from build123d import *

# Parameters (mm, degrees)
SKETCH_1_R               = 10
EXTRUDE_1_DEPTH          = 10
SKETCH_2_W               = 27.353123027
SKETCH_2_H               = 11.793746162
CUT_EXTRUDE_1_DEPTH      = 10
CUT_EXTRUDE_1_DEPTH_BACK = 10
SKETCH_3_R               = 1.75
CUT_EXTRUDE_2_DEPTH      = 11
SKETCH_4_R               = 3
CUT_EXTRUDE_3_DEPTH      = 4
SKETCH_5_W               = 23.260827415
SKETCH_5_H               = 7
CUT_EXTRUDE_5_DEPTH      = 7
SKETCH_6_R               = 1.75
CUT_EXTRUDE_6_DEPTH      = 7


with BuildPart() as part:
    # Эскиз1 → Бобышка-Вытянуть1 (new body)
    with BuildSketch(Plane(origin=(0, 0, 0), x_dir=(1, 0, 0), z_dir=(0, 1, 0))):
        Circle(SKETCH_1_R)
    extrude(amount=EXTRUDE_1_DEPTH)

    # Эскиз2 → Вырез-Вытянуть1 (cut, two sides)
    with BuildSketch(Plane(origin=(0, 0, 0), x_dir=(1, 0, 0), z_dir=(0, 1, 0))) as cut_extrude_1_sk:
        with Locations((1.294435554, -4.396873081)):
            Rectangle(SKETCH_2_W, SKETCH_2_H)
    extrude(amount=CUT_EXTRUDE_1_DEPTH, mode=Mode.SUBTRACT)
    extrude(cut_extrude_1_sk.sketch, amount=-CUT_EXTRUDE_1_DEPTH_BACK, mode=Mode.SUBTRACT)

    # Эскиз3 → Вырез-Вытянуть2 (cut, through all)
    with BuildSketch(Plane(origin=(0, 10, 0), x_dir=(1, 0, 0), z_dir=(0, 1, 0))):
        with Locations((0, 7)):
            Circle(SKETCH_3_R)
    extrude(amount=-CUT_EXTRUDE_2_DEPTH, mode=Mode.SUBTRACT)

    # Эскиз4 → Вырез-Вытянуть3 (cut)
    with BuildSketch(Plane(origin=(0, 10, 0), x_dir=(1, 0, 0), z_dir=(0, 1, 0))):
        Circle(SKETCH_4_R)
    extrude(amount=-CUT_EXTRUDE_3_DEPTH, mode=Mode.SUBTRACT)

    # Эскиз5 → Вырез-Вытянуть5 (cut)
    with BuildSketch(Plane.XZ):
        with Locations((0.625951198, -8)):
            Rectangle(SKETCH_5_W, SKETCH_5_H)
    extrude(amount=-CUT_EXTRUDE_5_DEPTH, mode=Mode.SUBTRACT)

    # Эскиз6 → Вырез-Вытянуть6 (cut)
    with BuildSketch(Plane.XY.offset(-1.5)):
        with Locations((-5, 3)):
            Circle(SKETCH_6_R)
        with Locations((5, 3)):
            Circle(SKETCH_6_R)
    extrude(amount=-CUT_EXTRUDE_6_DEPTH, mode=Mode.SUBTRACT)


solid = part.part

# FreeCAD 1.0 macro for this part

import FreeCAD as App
import Part
import Sketcher

V = App.Vector
Q = App.Units.Quantity


def add_polygon(sketch, points):
    """Adds a closed chain of lines whose ends are joined by coincident constraints."""
    first, n = sketch.GeometryCount, len(points)
    for a, b in zip(points, points[1:] + points[:1]):
        sketch.addGeometry(Part.LineSegment(App.Vector(*a, 0), App.Vector(*b, 0)), False)
    for i in range(n):
        sketch.addConstraint(Sketcher.Constraint("Coincident", first + i, 2, first + (i + 1) % n, 1))

doc = App.newDocument("Part")
body = doc.addObject("PartDesign::Body", "Body")

# Sketch on XZ plane
sketch1 = body.newObject("Sketcher::SketchObject", "Sketch")
sketch1.AttachmentSupport = (doc.getObject("XZ_Plane"), [""])
sketch1.MapMode = "FlatFace"
sketch1.addGeometry(Part.Circle(V(0, 0, 0), V(0, 0, 1), 10), False)
sketch1.addConstraint(Sketcher.Constraint("Coincident", 0, 3, -1, 1))
sketch1.addConstraint(Sketcher.Constraint("Diameter", 0, Q("20 mm")))
pad1 = body.newObject("PartDesign::Pad", "Pad")
pad1.Profile = sketch1
pad1.Length = 10
pad1.Reversed = True

# Sketch on XZ plane
sketch2 = body.newObject("Sketcher::SketchObject", "Sketch001")
sketch2.AttachmentSupport = (doc.getObject("XZ_Plane"), [""])
sketch2.MapMode = "FlatFace"
add_polygon(sketch2, [(-12, -2), (-12, 10), (15, 10), (15, -2)])  # lines 0-3
sketch2.addConstraint(Sketcher.Constraint("Vertical", 0))
sketch2.addConstraint(Sketcher.Constraint("Horizontal", 1))
sketch2.addConstraint(Sketcher.Constraint("Vertical", 2))
sketch2.addConstraint(Sketcher.Constraint("Horizontal", 3))
sketch2.addConstraint(Sketcher.Constraint("DistanceY", 2, 2, -1, 1, Q("1.5 mm")))
sketch2.addConstraint(Sketcher.Constraint("DistanceX", 1, 1, 1, 2, Q("27.353123 mm")))
sketch2.addConstraint(Sketcher.Constraint("DistanceY", 0, 1, 0, 2, Q("11.793746 mm")))
sketch2.addConstraint(Sketcher.Constraint("DistanceX", 0, 2, -1, 1, Q("12.382126 mm")))
pocket1 = body.newObject("PartDesign::Pocket", "Pocket")
pocket1.Profile = sketch2
pocket1.Type = "ThroughAll"
pocket1.Midplane = True

# Sketch on XZ plane
sketch3 = body.newObject("Sketcher::SketchObject", "Sketch002")
sketch3.AttachmentSupport = (doc.getObject("XZ_Plane"), [""])
sketch3.MapMode = "FlatFace"
sketch3.AttachmentOffset = App.Placement(V(0, 0, -10), App.Rotation())
sketch3.addGeometry(Part.Circle(V(0, -7, 0), V(0, 0, 1), 1.8), False)
sketch3.addConstraint(Sketcher.Constraint("PointOnObject", 0, 3, -2))
sketch3.addConstraint(Sketcher.Constraint("Diameter", 0, Q("3.5 mm")))
sketch3.addConstraint(Sketcher.Constraint("DistanceY", 0, 3, -1, 1, Q("7 mm")))
pocket2 = body.newObject("PartDesign::Pocket", "Pocket001")
pocket2.Profile = sketch3
pocket2.Type = "ThroughAll"
pocket2.Reversed = True

# Sketch on XZ plane
sketch4 = body.newObject("Sketcher::SketchObject", "Sketch003")
sketch4.AttachmentSupport = (doc.getObject("XZ_Plane"), [""])
sketch4.MapMode = "FlatFace"
sketch4.AttachmentOffset = App.Placement(V(0, 0, -10), App.Rotation())
sketch4.addGeometry(Part.Circle(V(0, 0, 0), V(0, 0, 1), 3), False)
sketch4.addConstraint(Sketcher.Constraint("Coincident", 0, 3, -1, 1))
sketch4.addConstraint(Sketcher.Constraint("Diameter", 0, Q("6 mm")))
pocket3 = body.newObject("PartDesign::Pocket", "Pocket002")
pocket3.Profile = sketch4
pocket3.Length = 4
pocket3.Reversed = True

# Sketch on XZ plane
sketch5 = body.newObject("Sketcher::SketchObject", "Sketch004")
sketch5.AttachmentSupport = (doc.getObject("XZ_Plane"), [""])
sketch5.MapMode = "FlatFace"
add_polygon(sketch5, [(-11, -4), (-11, -12), (12, -12), (12, -4)])  # lines 0-3
sketch5.addConstraint(Sketcher.Constraint("Vertical", 0))
sketch5.addConstraint(Sketcher.Constraint("Horizontal", 1))
sketch5.addConstraint(Sketcher.Constraint("Vertical", 2))
sketch5.addConstraint(Sketcher.Constraint("Horizontal", 3))
sketch5.addConstraint(Sketcher.Constraint("DistanceY", 0, 2, 0, 1, Q("7 mm")))
sketch5.addConstraint(Sketcher.Constraint("DistanceY", 0, 2, -1, 1, Q("11.5 mm")))
sketch5.addConstraint(Sketcher.Constraint("DistanceX", 1, 1, 1, 2, Q("23.260827 mm")))
sketch5.addConstraint(Sketcher.Constraint("DistanceX", 0, 2, -1, 1, Q("11.004463 mm")))
pocket4 = body.newObject("PartDesign::Pocket", "Pocket003")
pocket4.Profile = sketch5
pocket4.Length = 7

# Sketch on XY plane
sketch6 = body.newObject("Sketcher::SketchObject", "Sketch005")
sketch6.AttachmentSupport = (doc.getObject("XY_Plane"), [""])
sketch6.MapMode = "FlatFace"
sketch6.AttachmentOffset = App.Placement(V(0, 0, -1.5), App.Rotation())
sketch6.addGeometry(Part.Circle(V(-5, 3, 0), V(0, 0, 1), 1.8), False)
sketch6.addGeometry(Part.Circle(V(5, 3, 0), V(0, 0, 1), 1.8), False)
sketch6.addConstraint(Sketcher.Constraint("Equal", 0, 1))
sketch6.addConstraint(Sketcher.Constraint("Symmetric", 0, 3, 1, 3, -2))
sketch6.addConstraint(Sketcher.Constraint("Diameter", 0, Q("3.5 mm")))
sketch6.addConstraint(Sketcher.Constraint("DistanceX", 0, 3, -1, 1, Q("5 mm")))
sketch6.addConstraint(Sketcher.Constraint("DistanceY", -1, 1, 0, 3, Q("3 mm")))
pocket5 = body.newObject("PartDesign::Pocket", "Pocket004")
pocket5.Profile = sketch6
pocket5.Length = 7

doc.recompute()
